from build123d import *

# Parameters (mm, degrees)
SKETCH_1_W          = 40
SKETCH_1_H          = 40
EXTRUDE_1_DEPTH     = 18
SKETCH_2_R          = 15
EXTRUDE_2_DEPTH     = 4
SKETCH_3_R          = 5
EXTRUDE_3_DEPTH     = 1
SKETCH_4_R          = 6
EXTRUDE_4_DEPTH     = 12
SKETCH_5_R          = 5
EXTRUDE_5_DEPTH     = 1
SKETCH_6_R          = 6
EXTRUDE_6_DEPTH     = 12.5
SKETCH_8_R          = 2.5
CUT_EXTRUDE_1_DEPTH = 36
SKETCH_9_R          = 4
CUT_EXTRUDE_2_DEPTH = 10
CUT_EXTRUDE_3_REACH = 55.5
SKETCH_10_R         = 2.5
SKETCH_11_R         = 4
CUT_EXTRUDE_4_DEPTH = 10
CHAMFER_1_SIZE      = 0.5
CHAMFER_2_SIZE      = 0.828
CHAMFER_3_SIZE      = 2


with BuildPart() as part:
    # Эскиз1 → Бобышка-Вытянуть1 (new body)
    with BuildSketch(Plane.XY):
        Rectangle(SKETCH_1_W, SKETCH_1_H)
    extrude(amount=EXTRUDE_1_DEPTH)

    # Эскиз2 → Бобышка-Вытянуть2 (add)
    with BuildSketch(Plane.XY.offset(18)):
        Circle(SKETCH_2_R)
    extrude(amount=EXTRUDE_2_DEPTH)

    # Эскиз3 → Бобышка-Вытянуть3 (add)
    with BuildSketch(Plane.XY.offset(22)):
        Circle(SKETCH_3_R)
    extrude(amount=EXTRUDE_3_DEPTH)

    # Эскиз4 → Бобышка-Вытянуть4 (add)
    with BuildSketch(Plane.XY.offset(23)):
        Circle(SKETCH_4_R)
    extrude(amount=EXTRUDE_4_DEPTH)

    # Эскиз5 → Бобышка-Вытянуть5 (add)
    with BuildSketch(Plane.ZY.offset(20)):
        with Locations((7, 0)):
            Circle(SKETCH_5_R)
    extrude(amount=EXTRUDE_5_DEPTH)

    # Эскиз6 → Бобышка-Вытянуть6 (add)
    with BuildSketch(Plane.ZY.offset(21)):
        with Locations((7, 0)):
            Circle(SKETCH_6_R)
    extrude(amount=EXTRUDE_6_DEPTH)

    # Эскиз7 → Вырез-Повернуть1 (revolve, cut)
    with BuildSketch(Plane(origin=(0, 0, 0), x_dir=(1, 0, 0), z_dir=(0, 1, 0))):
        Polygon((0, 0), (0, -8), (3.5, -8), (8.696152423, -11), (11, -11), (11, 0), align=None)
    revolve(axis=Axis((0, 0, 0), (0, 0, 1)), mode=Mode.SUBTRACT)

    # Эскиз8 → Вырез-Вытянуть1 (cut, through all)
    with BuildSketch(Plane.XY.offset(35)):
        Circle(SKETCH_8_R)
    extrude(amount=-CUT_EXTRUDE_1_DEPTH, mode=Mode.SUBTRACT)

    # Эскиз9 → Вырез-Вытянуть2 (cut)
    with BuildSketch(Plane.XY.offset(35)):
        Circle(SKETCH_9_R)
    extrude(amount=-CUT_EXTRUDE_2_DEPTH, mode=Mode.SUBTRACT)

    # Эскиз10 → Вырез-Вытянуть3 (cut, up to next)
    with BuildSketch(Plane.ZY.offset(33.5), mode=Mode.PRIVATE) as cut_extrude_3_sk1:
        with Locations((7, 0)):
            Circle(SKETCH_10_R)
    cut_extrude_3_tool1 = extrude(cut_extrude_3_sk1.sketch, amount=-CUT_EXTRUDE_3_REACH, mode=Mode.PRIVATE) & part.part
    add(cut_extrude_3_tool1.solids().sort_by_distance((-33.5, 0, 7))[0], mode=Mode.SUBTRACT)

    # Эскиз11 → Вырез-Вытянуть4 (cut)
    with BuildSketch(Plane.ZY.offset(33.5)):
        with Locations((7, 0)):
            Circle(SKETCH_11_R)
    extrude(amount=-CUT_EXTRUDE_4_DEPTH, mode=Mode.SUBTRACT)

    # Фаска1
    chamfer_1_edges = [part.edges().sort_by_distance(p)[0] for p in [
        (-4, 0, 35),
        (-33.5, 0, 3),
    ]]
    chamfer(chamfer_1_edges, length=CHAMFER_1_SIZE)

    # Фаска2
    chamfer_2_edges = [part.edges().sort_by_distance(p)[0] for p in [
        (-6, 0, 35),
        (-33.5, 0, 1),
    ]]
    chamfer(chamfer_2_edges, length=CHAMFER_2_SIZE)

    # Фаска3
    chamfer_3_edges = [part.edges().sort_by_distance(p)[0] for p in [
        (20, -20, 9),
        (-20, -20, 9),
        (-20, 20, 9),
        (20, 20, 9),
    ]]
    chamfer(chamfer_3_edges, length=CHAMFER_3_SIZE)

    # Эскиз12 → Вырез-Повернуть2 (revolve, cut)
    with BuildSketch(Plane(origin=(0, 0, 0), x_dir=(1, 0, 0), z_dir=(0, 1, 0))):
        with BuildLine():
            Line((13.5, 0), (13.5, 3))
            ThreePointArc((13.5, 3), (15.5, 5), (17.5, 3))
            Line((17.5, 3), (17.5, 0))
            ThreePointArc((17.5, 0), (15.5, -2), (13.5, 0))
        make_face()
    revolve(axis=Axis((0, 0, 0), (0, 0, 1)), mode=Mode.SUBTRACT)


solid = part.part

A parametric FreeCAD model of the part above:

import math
import FreeCAD as App
import Part
import Sketcher
from FreeCAD import Vector
Q = App.Units.Quantity


def edges_at(feature, points):
    """Names of the edges that pass closest to the given points."""
    edges = feature.Shape.Edges
    near = lambda p: min(range(len(edges)), key=lambda i: edges[i].distToShape(Part.Vertex(*p))[0])
    return sorted({f"Edge{near(p) + 1}" for p in points})

doc = App.newDocument("Part")
body = doc.addObject("PartDesign::Body", "Body")

sketch1 = body.newObject("Sketcher::SketchObject", "Sketch")
sketch1.AttachmentSupport = (doc.getObject("XY_Plane"), [""])
sketch1.MapMode = "FlatFace"
sketch1.addGeometry(Part.LineSegment(Vector(-20, 20, 0), Vector(-20, -20, 0)), False)
sketch1.addGeometry(Part.LineSegment(Vector(-20, -20, 0), Vector(20, -20, 0)), False)
sketch1.addGeometry(Part.LineSegment(Vector(20, -20, 0), Vector(20, 20, 0)), False)
sketch1.addGeometry(Part.LineSegment(Vector(20, 20, 0), Vector(-20, 20, 0)), False)
sketch1.addConstraint(Sketcher.Constraint("Coincident", 0, 2, 1, 1))
sketch1.addConstraint(Sketcher.Constraint("Coincident", 1, 2, 2, 1))
sketch1.addConstraint(Sketcher.Constraint("Coincident", 2, 2, 3, 1))
sketch1.addConstraint(Sketcher.Constraint("Coincident", 3, 2, 0, 1))
sketch1.addConstraint(Sketcher.Constraint("Vertical", 0))
sketch1.addConstraint(Sketcher.Constraint("Horizontal", 1))
sketch1.addConstraint(Sketcher.Constraint("Vertical", 2))
sketch1.addConstraint(Sketcher.Constraint("Horizontal", 3))
sketch1.addConstraint(Sketcher.Constraint("Symmetric", 0, 2, 2, 2, -1, 1))
sketch1.addConstraint(Sketcher.Constraint("Equal", 3, 0))
sketch1.addConstraint(Sketcher.Constraint("DistanceX", 1, 1, 1, 2, 40.0))
pad1 = body.newObject("PartDesign::Pad", "Pad")
pad1.Profile = sketch1
pad1.Length = 18

sketch2 = body.newObject("Sketcher::SketchObject", "Sketch001")
sketch2.AttachmentSupport = (doc.getObject("XY_Plane"), [""])
sketch2.MapMode = "FlatFace"
sketch2.AttachmentOffset = App.Placement(Vector(0, 0, 18), App.Rotation())
sketch2.addGeometry(Part.Circle(Vector(0, 0, 0), Vector(0, 0, 1), 15), False)
sketch2.addConstraint(Sketcher.Constraint("Coincident", 0, 3, -1, 1))
sketch2.addConstraint(Sketcher.Constraint("Diameter", 0, 30.0))
pad2 = body.newObject("PartDesign::Pad", "Pad001")
pad2.Profile = sketch2
pad2.Length = 4

sketch3 = body.newObject("Sketcher::SketchObject", "Sketch002")
sketch3.AttachmentSupport = (doc.getObject("XY_Plane"), [""])
sketch3.MapMode = "FlatFace"
sketch3.AttachmentOffset = App.Placement(Vector(0, 0, 22), App.Rotation())
sketch3.addGeometry(Part.Circle(Vector(0, 0, 0), Vector(0, 0, 1), 5), False)
sketch3.addConstraint(Sketcher.Constraint("Coincident", 0, 3, -1, 1))
sketch3.addConstraint(Sketcher.Constraint("Diameter", 0, 10.0))
pad3 = body.newObject("PartDesign::Pad", "Pad002")
pad3.Profile = sketch3
pad3.Length = 1

sketch4 = body.newObject("Sketcher::SketchObject", "Sketch003")
sketch4.AttachmentSupport = (doc.getObject("XY_Plane"), [""])
sketch4.MapMode = "FlatFace"
sketch4.AttachmentOffset = App.Placement(Vector(0, 0, 23), App.Rotation())
sketch4.addGeometry(Part.Circle(Vector(0, 0, 0), Vector(0, 0, 1), 6), False)
sketch4.addConstraint(Sketcher.Constraint("Coincident", 0, 3, -1, 1))
sketch4.addConstraint(Sketcher.Constraint("Diameter", 0, 12.0))
pad4 = body.newObject("PartDesign::Pad", "Pad003")
pad4.Profile = sketch4
pad4.Length = 12

sketch5 = body.newObject("Sketcher::SketchObject", "Sketch004")
sketch5.AttachmentSupport = (doc.getObject("YZ_Plane"), [""])
sketch5.MapMode = "FlatFace"
sketch5.AttachmentOffset = App.Placement(Vector(0, 0, -20), App.Rotation())
sketch5.addGeometry(Part.Circle(Vector(0, 7, 0), Vector(0, 0, 1), 5), False)
sketch5.addConstraint(Sketcher.Constraint("PointOnObject", 0, 3, -2))
sketch5.addConstraint(Sketcher.Constraint("Diameter", 0, 10.0))
sketch5.addConstraint(Sketcher.Constraint("DistanceY", -1, 1, 0, 3, 7.0))
pad5 = body.newObject("PartDesign::Pad", "Pad004")
pad5.Profile = sketch5
pad5.Length = 1
pad5.Reversed = True

sketch6 = body.newObject("Sketcher::SketchObject", "Sketch005")
sketch6.AttachmentSupport = (doc.getObject("YZ_Plane"), [""])
sketch6.MapMode = "FlatFace"
sketch6.AttachmentOffset = App.Placement(Vector(0, 0, -21), App.Rotation())
sketch6.addGeometry(Part.Circle(Vector(0, 7, 0), Vector(0, 0, 1), 6), False)
sketch6.addConstraint(Sketcher.Constraint("PointOnObject", 0, 3, -2))
sketch6.addConstraint(Sketcher.Constraint("Diameter", 0, 12.0))
sketch6.addConstraint(Sketcher.Constraint("DistanceY", -1, 1, 0, 3, 7.0))
pad6 = body.newObject("PartDesign::Pad", "Pad005")
pad6.Profile = sketch6
pad6.Length = 12.5
pad6.Reversed = True

sketch7 = body.newObject("Sketcher::SketchObject", "Sketch006")
sketch7.AttachmentSupport = (doc.getObject("XZ_Plane"), [""])
sketch7.MapMode = "FlatFace"
sketch7.addGeometry(Part.LineSegment(Vector(0, 0, 0), Vector(0, 8, 0)), False)
sketch7.addGeometry(Part.LineSegment(Vector(0, 8, 0), Vector(3.5, 8, 0)), False)
sketch7.addGeometry(Part.LineSegment(Vector(3.5, 8, 0), Vector(8.696152, 11, 0)), False)
sketch7.addGeometry(Part.LineSegment(Vector(8.696152, 11, 0), Vector(11, 11, 0)), False)
sketch7.addGeometry(Part.LineSegment(Vector(11, 11, 0), Vector(11, 0, 0)), False)
sketch7.addGeometry(Part.LineSegment(Vector(11, 0, 0), Vector(0, 0, 0)), False)
sketch7.addConstraint(Sketcher.Constraint("Coincident", 0, 2, 1, 1))
sketch7.addConstraint(Sketcher.Constraint("Coincident", 1, 2, 2, 1))
sketch7.addConstraint(Sketcher.Constraint("Coincident", 2, 2, 3, 1))
sketch7.addConstraint(Sketcher.Constraint("Coincident", 3, 2, 4, 1))
sketch7.addConstraint(Sketcher.Constraint("Coincident", 4, 2, 5, 1))
sketch7.addConstraint(Sketcher.Constraint("Coincident", 5, 2, 0, 1))
sketch7.addConstraint(Sketcher.Constraint("Vertical", 0))
sketch7.addConstraint(Sketcher.Constraint("Horizontal", 1))
sketch7.addConstraint(Sketcher.Constraint("Horizontal", 3))
sketch7.addConstraint(Sketcher.Constraint("Vertical", 4))
sketch7.addConstraint(Sketcher.Constraint("Horizontal", 5))
sketch7.addConstraint(Sketcher.Constraint("Coincident", 5, 2, -1, 1))
sketch7.addConstraint(Sketcher.Constraint("Equal", 5, 4))
sketch7.addConstraint(Sketcher.Constraint("DistanceX", 5, 2, 5, 1, 11.0))
sketch7.addConstraint(Sketcher.Constraint("DistanceY", 0, 1, 0, 2, 8.0))
sketch7.addConstraint(Sketcher.Constraint("Angle", 2, Q("30 deg")))
sketch7.addConstraint(Sketcher.Constraint("DistanceX", 1, 1, 1, 2, 3.5))
groove = body.newObject("PartDesign::Groove", "Groove")
groove.Profile = sketch7
groove.ReferenceAxis = (sketch7, ["V_Axis"])
groove.Angle = 360

sketch8 = body.newObject("Sketcher::SketchObject", "Sketch007")
sketch8.AttachmentSupport = (doc.getObject("XY_Plane"), [""])
sketch8.MapMode = "FlatFace"
sketch8.AttachmentOffset = App.Placement(Vector(0, 0, 35), App.Rotation())
sketch8.addGeometry(Part.Circle(Vector(0, 0, 0), Vector(0, 0, 1), 2.5), False)
sketch8.addConstraint(Sketcher.Constraint("Coincident", 0, 3, -1, 1))
sketch8.addConstraint(Sketcher.Constraint("Diameter", 0, 5.0))
pocket1 = body.newObject("PartDesign::Pocket", "Pocket")
pocket1.Profile = sketch8
pocket1.Type = "ThroughAll"

sketch9 = body.newObject("Sketcher::SketchObject", "Sketch008")
sketch9.AttachmentSupport = (doc.getObject("XY_Plane"), [""])
sketch9.MapMode = "FlatFace"
sketch9.AttachmentOffset = App.Placement(Vector(0, 0, 35), App.Rotation())
sketch9.addGeometry(Part.Circle(Vector(0, 0, 0), Vector(0, 0, 1), 4), False)
sketch9.addConstraint(Sketcher.Constraint("Coincident", 0, 3, -1, 1))
sketch9.addConstraint(Sketcher.Constraint("Diameter", 0, 8.0))
pocket2 = body.newObject("PartDesign::Pocket", "Pocket001")
pocket2.Profile = sketch9
pocket2.Length = 10

sketch10 = body.newObject("Sketcher::SketchObject", "Sketch009")
sketch10.AttachmentSupport = (doc.getObject("YZ_Plane"), [""])
sketch10.MapMode = "FlatFace"
sketch10.AttachmentOffset = App.Placement(Vector(0, 0, -33.5), App.Rotation())
sketch10.addGeometry(Part.Circle(Vector(0, 7, 0), Vector(0, 0, 1), 2.5), False)
sketch10.addConstraint(Sketcher.Constraint("PointOnObject", 0, 3, -2))
sketch10.addConstraint(Sketcher.Constraint("Diameter", 0, 5.0))
sketch10.addConstraint(Sketcher.Constraint("DistanceY", -1, 1, 0, 3, 7.0))
pocket3 = body.newObject("PartDesign::Pocket", "Pocket002")
pocket3.Profile = sketch10
pocket3.Type = "UpToFirst"
pocket3.Reversed = True

sketch11 = body.newObject("Sketcher::SketchObject", "Sketch010")
sketch11.AttachmentSupport = (doc.getObject("YZ_Plane"), [""])
sketch11.MapMode = "FlatFace"
sketch11.AttachmentOffset = App.Placement(Vector(0, 0, -33.5), App.Rotation())
sketch11.addGeometry(Part.Circle(Vector(0, 7, 0), Vector(0, 0, 1), 4), False)
sketch11.addConstraint(Sketcher.Constraint("PointOnObject", 0, 3, -2))
sketch11.addConstraint(Sketcher.Constraint("Diameter", 0, 8.0))
sketch11.addConstraint(Sketcher.Constraint("DistanceY", -1, 1, 0, 3, 7.0))
pocket4 = body.newObject("PartDesign::Pocket", "Pocket003")
pocket4.Profile = sketch11
pocket4.Length = 10
pocket4.Reversed = True
doc.recompute()

chamfer = body.newObject("PartDesign::Chamfer", "Chamfer")
chamfer.Base = (pocket4, edges_at(pocket4, [(-4, 0, 35), (-33.5, 0, 3)]))
chamfer.Size = 0.5
doc.recompute()

chamfer2 = body.newObject("PartDesign::Chamfer", "Chamfer001")
chamfer2.Base = (chamfer, edges_at(chamfer, [(-6, 0, 35), (-33.5, 0, 1)]))
chamfer2.Size = 0.828
doc.recompute()

chamfer3 = body.newObject("PartDesign::Chamfer", "Chamfer002")
chamfer3.Base = (chamfer2, edges_at(chamfer2, [
    (20, -20, 9),
    (-20, -20, 9),
    (-20, 20, 9),
    (20, 20, 9),
]))
chamfer3.Size = 2

sketch12 = body.newObject("Sketcher::SketchObject", "Sketch011")
sketch12.AttachmentSupport = (doc.getObject("XZ_Plane"), [""])
sketch12.MapMode = "FlatFace"
sketch12.addGeometry(Part.LineSegment(Vector(13.5, -3, 0), Vector(13.5, 0, 0)), False)
sketch12.addGeometry(Part.ArcOfCircle(Part.Circle(Vector(15.5, 0, 0), Vector(0, 0, 1), 2), math.radians(0), math.radians(180)), False)
sketch12.addGeometry(Part.LineSegment(Vector(17.5, 0, 0), Vector(17.5, -3, 0)), False)
sketch12.addGeometry(Part.ArcOfCircle(Part.Circle(Vector(15.5, -3, 0), Vector(0, 0, 1), 2), math.radians(180), math.radians(360)), False)
sketch12.addConstraint(Sketcher.Constraint("Tangent", 0, 2, 1, 2))
sketch12.addConstraint(Sketcher.Constraint("Tangent", 1, 1, 2, 1))
sketch12.addConstraint(Sketcher.Constraint("Tangent", 2, 2, 3, 2))
sketch12.addConstraint(Sketcher.Constraint("Tangent", 3, 1, 0, 1))
sketch12.addConstraint(Sketcher.Constraint("Vertical", 0))
sketch12.addConstraint(Sketcher.Constraint("Vertical", 2))
sketch12.addConstraint(Sketcher.Constraint("PointOnObject", 1, 3, -1))
sketch12.addConstraint(Sketcher.Constraint("Radius", 1, 2.0))
sketch12.addConstraint(Sketcher.Constraint("DistanceY", 0, 1, 0, 2, 3.0))
sketch12.addConstraint(Sketcher.Constraint("DistanceX", -1, 1, 1, 3, 15.5))
groove2 = body.newObject("PartDesign::Groove", "Groove001")
groove2.Profile = sketch12
groove2.ReferenceAxis = (sketch12, ["V_Axis"])
groove2.Angle = 360

doc.recompute()
